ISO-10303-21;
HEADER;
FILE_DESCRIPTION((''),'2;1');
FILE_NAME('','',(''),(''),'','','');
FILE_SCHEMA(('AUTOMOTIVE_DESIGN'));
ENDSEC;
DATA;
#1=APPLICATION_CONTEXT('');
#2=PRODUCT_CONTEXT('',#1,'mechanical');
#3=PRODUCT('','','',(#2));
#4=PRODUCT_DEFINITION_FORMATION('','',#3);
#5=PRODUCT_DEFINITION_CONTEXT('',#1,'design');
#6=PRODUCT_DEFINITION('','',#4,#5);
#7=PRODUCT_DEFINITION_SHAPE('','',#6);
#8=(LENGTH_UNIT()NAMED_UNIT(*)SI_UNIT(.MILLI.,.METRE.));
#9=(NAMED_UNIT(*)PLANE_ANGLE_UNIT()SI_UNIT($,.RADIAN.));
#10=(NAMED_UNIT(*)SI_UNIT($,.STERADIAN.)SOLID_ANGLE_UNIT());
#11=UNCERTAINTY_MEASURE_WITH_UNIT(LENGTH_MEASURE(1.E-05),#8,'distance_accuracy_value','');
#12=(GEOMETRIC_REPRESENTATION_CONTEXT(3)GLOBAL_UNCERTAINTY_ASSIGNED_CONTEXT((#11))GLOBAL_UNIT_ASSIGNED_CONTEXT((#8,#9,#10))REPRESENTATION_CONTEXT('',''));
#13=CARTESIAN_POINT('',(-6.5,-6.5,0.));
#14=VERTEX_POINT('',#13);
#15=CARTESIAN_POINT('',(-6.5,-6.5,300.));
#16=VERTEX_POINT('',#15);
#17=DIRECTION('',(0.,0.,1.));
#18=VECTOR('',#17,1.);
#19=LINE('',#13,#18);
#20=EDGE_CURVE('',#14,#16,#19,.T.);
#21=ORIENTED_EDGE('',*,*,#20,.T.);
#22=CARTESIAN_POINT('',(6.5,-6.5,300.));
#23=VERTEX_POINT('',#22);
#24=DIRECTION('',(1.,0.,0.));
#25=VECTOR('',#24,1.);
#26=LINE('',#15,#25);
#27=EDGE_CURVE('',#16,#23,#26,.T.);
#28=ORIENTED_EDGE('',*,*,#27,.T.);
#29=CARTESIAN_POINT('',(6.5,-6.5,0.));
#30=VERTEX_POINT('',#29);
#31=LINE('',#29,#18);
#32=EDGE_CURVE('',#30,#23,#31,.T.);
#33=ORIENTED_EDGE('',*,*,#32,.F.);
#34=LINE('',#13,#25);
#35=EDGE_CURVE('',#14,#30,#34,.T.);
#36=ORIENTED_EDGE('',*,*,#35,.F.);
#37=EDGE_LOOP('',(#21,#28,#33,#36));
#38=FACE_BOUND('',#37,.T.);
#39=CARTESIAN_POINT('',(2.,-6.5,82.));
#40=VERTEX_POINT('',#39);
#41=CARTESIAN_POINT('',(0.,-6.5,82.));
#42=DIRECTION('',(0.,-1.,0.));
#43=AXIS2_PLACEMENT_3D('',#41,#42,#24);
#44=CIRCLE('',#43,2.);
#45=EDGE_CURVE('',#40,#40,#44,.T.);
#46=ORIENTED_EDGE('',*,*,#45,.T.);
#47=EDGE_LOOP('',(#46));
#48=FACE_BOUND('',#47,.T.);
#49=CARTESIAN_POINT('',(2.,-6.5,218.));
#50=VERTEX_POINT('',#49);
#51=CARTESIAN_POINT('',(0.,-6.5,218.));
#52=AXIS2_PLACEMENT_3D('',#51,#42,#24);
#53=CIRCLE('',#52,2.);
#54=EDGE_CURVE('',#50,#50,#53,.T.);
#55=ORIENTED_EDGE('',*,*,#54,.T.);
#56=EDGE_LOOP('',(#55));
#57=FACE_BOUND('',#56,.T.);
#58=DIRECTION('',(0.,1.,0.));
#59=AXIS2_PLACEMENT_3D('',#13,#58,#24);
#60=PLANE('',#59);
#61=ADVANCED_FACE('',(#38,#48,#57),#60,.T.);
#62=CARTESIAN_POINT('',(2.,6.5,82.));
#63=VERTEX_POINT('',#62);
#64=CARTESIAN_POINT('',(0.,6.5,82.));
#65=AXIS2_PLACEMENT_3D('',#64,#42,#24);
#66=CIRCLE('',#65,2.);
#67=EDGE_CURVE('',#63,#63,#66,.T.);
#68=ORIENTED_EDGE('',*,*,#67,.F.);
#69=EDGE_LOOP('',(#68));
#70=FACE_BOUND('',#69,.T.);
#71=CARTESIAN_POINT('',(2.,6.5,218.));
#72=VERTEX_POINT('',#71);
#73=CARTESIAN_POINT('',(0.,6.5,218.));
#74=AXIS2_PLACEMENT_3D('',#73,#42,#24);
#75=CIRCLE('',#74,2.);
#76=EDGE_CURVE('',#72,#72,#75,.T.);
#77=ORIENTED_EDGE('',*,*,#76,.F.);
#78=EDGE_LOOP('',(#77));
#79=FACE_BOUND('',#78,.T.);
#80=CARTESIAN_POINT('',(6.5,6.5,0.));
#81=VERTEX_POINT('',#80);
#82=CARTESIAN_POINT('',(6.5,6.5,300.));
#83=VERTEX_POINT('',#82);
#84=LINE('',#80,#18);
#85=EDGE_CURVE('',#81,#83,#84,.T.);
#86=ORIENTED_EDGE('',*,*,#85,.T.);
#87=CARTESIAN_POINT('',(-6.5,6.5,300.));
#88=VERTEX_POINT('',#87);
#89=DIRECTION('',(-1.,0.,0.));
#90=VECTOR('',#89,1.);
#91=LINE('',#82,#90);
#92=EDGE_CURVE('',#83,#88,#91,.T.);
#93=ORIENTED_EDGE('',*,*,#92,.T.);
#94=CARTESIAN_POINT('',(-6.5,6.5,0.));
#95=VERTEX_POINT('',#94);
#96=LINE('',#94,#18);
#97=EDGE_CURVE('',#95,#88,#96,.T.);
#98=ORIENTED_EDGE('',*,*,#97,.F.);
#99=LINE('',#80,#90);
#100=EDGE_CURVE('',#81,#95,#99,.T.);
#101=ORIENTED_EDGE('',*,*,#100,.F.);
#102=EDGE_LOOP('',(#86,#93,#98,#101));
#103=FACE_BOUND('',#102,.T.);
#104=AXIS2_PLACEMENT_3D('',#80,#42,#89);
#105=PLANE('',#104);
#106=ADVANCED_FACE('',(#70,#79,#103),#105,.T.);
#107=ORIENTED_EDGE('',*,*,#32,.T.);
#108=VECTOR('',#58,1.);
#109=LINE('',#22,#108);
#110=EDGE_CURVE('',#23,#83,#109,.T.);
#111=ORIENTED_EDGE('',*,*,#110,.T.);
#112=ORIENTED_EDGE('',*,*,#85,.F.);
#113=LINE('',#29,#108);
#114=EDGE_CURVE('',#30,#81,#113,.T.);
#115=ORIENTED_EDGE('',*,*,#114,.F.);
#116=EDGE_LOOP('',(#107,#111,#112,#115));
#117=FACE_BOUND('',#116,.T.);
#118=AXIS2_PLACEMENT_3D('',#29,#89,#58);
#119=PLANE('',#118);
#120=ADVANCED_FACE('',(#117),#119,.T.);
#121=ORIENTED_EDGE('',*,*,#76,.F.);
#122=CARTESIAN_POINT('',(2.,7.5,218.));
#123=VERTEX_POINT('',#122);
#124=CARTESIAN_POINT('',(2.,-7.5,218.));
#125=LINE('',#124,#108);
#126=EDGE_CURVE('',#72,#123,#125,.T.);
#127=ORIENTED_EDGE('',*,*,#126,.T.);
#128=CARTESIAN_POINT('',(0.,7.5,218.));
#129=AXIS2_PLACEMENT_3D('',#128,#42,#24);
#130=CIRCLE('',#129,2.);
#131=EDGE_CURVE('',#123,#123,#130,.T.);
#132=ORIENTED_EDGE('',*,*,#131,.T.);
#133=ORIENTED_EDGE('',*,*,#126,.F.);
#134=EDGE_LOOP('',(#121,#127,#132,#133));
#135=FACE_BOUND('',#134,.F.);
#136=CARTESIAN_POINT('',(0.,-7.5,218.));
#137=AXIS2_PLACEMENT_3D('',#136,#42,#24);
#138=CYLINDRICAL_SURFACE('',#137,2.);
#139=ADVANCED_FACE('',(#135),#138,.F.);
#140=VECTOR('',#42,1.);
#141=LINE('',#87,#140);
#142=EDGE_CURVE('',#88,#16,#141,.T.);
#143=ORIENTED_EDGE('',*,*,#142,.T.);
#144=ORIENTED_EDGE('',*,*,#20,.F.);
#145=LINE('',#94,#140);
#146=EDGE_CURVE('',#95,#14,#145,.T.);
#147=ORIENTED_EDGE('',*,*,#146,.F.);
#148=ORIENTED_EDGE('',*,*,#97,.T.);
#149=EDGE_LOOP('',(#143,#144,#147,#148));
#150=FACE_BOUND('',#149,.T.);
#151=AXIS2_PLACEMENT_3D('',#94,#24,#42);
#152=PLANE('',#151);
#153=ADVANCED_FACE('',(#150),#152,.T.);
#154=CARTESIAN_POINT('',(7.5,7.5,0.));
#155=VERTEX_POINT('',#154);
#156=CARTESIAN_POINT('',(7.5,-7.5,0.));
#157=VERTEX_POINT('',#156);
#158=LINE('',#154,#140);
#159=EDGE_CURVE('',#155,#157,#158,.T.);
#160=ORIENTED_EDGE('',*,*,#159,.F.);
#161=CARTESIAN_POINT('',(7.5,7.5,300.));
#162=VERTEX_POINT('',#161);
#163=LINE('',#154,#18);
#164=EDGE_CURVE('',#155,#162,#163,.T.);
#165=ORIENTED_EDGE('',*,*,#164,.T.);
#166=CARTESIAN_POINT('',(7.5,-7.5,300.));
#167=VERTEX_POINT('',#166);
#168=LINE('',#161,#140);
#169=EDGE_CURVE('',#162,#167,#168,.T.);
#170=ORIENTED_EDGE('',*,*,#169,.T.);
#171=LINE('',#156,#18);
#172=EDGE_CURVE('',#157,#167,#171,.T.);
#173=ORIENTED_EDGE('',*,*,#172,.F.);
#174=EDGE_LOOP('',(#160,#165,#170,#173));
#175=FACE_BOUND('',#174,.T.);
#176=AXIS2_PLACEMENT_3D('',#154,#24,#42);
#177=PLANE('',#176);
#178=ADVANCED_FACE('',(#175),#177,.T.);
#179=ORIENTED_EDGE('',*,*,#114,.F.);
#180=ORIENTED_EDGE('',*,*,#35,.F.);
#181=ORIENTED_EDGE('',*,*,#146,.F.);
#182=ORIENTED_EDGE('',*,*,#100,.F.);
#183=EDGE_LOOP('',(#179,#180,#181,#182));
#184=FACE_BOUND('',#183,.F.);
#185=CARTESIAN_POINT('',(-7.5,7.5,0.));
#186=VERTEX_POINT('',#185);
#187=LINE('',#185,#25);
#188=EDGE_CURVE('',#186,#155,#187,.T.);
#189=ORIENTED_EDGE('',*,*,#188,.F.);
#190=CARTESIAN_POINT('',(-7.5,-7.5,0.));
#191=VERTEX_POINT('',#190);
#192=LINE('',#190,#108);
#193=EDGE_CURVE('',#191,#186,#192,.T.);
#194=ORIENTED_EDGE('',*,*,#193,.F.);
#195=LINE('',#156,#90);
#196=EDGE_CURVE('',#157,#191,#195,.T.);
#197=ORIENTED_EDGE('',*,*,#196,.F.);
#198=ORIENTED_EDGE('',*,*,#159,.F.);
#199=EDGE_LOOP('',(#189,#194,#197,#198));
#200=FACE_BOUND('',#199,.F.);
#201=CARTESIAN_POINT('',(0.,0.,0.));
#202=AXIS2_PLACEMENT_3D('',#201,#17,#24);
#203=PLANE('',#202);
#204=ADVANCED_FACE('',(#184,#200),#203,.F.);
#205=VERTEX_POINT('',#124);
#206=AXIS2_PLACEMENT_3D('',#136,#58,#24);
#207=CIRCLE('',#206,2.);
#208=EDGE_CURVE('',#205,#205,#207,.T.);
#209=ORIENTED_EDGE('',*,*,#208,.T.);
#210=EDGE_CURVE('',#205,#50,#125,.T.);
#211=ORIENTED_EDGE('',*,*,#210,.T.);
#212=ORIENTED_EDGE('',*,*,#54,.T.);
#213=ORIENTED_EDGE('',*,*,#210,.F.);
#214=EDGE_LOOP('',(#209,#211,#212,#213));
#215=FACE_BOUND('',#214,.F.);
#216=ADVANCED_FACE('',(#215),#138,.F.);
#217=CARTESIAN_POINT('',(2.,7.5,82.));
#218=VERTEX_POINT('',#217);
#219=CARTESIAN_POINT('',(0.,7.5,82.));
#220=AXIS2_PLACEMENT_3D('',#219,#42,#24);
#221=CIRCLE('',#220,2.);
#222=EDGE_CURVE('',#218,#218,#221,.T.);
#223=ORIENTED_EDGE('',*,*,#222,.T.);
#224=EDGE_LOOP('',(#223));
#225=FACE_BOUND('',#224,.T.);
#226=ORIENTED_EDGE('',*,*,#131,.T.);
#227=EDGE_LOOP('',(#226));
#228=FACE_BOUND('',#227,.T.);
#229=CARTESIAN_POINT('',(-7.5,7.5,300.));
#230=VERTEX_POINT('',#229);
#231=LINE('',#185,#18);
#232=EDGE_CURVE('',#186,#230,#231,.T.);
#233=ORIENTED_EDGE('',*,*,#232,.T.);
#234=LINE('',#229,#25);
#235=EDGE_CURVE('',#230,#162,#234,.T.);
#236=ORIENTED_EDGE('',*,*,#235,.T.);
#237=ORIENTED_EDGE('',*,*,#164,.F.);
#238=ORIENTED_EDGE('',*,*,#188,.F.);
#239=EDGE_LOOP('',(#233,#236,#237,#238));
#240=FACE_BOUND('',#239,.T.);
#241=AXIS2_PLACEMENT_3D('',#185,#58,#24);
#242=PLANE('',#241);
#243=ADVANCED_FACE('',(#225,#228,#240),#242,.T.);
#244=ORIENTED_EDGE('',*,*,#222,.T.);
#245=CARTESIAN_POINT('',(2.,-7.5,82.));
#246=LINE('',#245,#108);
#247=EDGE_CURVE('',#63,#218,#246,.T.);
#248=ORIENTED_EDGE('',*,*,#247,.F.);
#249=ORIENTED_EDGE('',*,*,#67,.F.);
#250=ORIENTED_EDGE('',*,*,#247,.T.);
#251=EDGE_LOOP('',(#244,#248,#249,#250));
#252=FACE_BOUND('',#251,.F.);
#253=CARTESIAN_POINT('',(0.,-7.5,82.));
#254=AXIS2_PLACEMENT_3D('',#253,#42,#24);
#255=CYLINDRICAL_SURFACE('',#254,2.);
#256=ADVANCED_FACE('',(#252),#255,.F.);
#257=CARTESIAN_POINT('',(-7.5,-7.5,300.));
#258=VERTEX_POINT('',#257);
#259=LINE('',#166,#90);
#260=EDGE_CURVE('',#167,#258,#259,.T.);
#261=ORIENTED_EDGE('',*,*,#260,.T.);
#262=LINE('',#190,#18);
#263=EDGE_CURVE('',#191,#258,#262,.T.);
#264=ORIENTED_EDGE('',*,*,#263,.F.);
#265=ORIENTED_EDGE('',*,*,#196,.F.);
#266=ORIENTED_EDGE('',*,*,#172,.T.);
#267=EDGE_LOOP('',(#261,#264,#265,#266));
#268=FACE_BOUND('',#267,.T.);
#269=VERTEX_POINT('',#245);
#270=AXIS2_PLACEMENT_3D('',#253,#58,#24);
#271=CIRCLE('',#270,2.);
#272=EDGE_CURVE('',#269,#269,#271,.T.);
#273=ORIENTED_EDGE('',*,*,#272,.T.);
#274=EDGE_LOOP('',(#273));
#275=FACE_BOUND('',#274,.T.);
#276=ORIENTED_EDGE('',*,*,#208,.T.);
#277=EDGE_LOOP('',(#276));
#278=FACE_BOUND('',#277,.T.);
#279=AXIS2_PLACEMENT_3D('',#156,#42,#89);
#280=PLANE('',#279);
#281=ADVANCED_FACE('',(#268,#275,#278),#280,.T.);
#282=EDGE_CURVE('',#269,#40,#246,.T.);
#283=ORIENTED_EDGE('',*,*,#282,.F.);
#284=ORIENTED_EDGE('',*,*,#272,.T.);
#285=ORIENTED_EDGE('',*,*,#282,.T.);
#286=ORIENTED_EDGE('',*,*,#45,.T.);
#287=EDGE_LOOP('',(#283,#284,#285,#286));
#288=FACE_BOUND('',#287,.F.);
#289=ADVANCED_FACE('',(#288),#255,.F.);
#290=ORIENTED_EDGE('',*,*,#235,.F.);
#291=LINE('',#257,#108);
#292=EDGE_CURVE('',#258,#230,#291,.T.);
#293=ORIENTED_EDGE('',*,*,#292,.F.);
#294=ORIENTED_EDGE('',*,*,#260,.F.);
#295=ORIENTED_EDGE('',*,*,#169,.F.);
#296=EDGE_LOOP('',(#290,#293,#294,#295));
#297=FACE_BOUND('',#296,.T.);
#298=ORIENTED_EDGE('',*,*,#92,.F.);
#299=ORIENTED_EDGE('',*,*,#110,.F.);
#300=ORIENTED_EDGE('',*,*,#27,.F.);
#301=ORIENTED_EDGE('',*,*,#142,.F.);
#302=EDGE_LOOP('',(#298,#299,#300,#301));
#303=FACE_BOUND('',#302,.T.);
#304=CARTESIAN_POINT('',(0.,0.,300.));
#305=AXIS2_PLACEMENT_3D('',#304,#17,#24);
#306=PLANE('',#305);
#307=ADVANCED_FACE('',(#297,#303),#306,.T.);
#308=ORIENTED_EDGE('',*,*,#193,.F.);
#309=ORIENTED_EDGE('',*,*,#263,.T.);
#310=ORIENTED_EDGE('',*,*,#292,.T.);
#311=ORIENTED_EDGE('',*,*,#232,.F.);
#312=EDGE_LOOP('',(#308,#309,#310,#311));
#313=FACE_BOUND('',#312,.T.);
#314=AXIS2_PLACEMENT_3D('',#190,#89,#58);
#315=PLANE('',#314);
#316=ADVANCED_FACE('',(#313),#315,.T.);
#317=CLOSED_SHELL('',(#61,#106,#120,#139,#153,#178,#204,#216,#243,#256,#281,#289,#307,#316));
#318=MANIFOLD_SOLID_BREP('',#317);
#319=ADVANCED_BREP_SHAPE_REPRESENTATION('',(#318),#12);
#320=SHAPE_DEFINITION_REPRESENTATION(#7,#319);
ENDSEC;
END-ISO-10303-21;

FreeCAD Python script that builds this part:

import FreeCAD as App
import Part
import Sketcher
from FreeCAD import Vector


def add_polygon(sketch, points):
    """Adds a closed chain of lines whose ends are joined by coincident constraints."""
    first, n = sketch.GeometryCount, len(points)
    for a, b in zip(points, points[1:] + points[:1]):
        sketch.addGeometry(Part.LineSegment(App.Vector(*a, 0), App.Vector(*b, 0)), False)
    for i in range(n):
        sketch.addConstraint(Sketcher.Constraint("Coincident", first + i, 2, first + (i + 1) % n, 1))

doc = App.newDocument("Part")
body = doc.addObject("PartDesign::Body", "Body")

# Sketch on XY plane
sketch1 = doc.addObject("Sketcher::SketchObject", "Sketch")
body.addObject(sketch1)
sketch1.AttachmentSupport = (doc.XY_Plane, [""])
sketch1.MapMode = "FlatFace"
add_polygon(sketch1, [(-8, -8), (8, -8), (8, 8), (-8, 8)])  # lines 0-3
add_polygon(sketch1, [(-6, 6), (6, 6), (6, -6), (-6, -6)])  # lines 4-7
sketch1.addConstraint(Sketcher.Constraint("Horizontal", 0))
sketch1.addConstraint(Sketcher.Constraint("Vertical", 1))
sketch1.addConstraint(Sketcher.Constraint("Horizontal", 2))
sketch1.addConstraint(Sketcher.Constraint("Vertical", 3))
sketch1.addConstraint(Sketcher.Constraint("Horizontal", 4))
sketch1.addConstraint(Sketcher.Constraint("Vertical", 5))
sketch1.addConstraint(Sketcher.Constraint("Horizontal", 6))
sketch1.addConstraint(Sketcher.Constraint("Vertical", 7))
sketch1.addConstraint(Sketcher.Constraint("Symmetric", 0, 2, 2, 2, -1, 1))
sketch1.addConstraint(Sketcher.Constraint("Symmetric", 4, 2, 6, 2, -1, 1))
sketch1.addConstraint(Sketcher.Constraint("Equal", 2, 1))
sketch1.addConstraint(Sketcher.Constraint("Equal", 6, 5))
sketch1.addConstraint(Sketcher.Constraint("DistanceX", 0, 1, 0, 2, 15.0))
sketch1.addConstraint(Sketcher.Constraint("DistanceX", 4, 2, 1, 2, 1.0))
pad1 = doc.addObject("PartDesign::Pad", "Pad")
body.addObject(pad1)
pad1.Profile = sketch1
pad1.Length = 300

# Sketch on XZ plane
sketch2 = doc.addObject("Sketcher::SketchObject", "Sketch001")
body.addObject(sketch2)
sketch2.AttachmentSupport = (doc.XZ_Plane, [""])
sketch2.MapMode = "FlatFace"
sketch2.AttachmentOffset = App.Placement(Vector(0, 0, 7.5), App.Rotation())
sketch2.addGeometry(Part.Circle(Vector(0, 218, 0), Vector(0, 0, 1), 2), False)
sketch2.addGeometry(Part.Circle(Vector(0, 82, 0), Vector(0, 0, 1), 2), False)
sketch2.addConstraint(Sketcher.Constraint("Equal", 0, 1))
sketch2.addConstraint(Sketcher.Constraint("PointOnObject", 0, 3, -2))
sketch2.addConstraint(Sketcher.Constraint("PointOnObject", 1, 3, -2))
sketch2.addConstraint(Sketcher.Constraint("Diameter", 0, 4.0))
sketch2.addConstraint(Sketcher.Constraint("DistanceY", -1, 1, 0, 3, 218.0))
sketch2.addConstraint(Sketcher.Constraint("DistanceY", -1, 1, 1, 3, 82.0))
pocket1 = doc.addObject("PartDesign::Pocket", "Pocket")
body.addObject(pocket1)
pocket1.Profile = sketch2
pocket1.Length = 300

doc.recompute()
